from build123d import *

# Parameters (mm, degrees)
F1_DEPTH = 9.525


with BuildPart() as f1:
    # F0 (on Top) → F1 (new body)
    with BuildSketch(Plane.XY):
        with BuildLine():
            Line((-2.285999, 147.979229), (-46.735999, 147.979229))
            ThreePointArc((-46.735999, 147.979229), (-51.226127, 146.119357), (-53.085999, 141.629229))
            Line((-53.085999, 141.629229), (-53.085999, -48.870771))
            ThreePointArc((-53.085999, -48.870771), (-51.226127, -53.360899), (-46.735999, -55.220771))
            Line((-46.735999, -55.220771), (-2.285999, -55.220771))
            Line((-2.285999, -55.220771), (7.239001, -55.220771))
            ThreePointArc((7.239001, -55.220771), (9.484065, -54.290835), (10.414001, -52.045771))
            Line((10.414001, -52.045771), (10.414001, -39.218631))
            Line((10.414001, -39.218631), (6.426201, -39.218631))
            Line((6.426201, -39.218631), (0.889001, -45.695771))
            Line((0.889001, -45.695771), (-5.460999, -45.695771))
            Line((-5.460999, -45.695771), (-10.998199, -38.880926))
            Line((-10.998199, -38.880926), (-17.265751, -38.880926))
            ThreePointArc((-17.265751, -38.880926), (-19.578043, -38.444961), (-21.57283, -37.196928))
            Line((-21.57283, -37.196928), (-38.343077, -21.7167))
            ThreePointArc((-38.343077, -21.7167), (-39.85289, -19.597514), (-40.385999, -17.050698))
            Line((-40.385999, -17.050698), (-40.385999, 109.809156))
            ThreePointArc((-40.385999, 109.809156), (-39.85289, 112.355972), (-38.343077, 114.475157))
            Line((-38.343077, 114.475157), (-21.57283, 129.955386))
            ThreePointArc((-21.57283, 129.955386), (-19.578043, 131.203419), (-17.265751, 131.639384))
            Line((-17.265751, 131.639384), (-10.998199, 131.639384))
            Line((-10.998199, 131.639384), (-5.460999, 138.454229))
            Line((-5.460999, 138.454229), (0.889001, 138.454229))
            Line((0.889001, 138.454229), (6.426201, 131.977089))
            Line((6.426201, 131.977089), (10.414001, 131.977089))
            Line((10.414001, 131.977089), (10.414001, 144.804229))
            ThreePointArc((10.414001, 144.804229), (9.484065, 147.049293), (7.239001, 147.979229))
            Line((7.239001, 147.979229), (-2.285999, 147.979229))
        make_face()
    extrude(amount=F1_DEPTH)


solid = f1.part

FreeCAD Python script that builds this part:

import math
import FreeCAD as App
import Part
import Sketcher

V = App.Vector
Q = App.Units.Quantity

doc = App.newDocument("Part")
body = doc.addObject("PartDesign::Body", "Body")

# Sketch on XY plane
sketch1 = body.newObject("Sketcher::SketchObject", "Sketch")
sketch1.AttachmentSupport = (doc.getObject("XY_Plane"), [""])
sketch1.MapMode = "FlatFace"
sketch1.addGeometry([
    Part.ArcOfCircle(Part.Circle(V(-46.735999, 141.629229, 0), V(0, 0, 1), 6.35), math.radians(90.000002), math.radians(179.999998)),  # 0
    Part.LineSegment(V(-53.085999, 141.629229, 0), V(-53.085999, -48.870771, 0)),  # 1
    Part.ArcOfCircle(Part.Circle(V(-46.735999, -48.870771, 0), V(0, 0, 1), 6.35), math.radians(-179.999998), math.radians(-90.000002)),  # 2
    Part.LineSegment(V(-46.735999, -55.220771, 0), V(7.239001, -55.220771, 0)),  # 3
    Part.ArcOfCircle(Part.Circle(V(7.239001, -52.045771, 0), V(0, 0, 1), 3.175), math.radians(-89.999998), math.radians(-0.000002)),  # 4
    Part.LineSegment(V(10.414001, -52.045771, 0), V(10.414001, -39.218631, 0)),  # 5
    Part.LineSegment(V(10.414001, -39.218631, 0), V(6.426201, -39.218631, 0)),  # 6
    Part.LineSegment(V(6.426201, -39.218631, 0), V(0.889001, -45.695771, 0)),  # 7
    Part.LineSegment(V(0.889001, -45.695771, 0), V(-5.460999, -45.695771, 0)),  # 8
    Part.LineSegment(V(-5.460999, -45.695771, 0), V(-10.998199, -38.880926, 0)),  # 9
    Part.LineSegment(V(-10.998199, -38.880926, 0), V(-17.265751, -38.880926, 0)),  # 10
    Part.ArcOfCircle(Part.Circle(V(-17.265752, -32.530928, 0), V(0, 0, 1), 6.349998), math.radians(-132.709396), math.radians(-89.999988)),  # 11
    Part.LineSegment(V(-21.57283, -37.196928, 0), V(-38.343077, -21.7167, 0)),  # 12
    Part.ArcOfCircle(Part.Circle(V(-34.035995, -17.050696, 0), V(0, 0, 1), 6.350004), math.radians(-179.999979), math.radians(-132.709399)),  # 13
    Part.LineSegment(V(-40.385999, -17.050698, 0), V(-40.385999, 109.809156, 0)),  # 14
    Part.ArcOfCircle(Part.Circle(V(-34.035999, 109.809155, 0), V(0, 0, 1), 6.35), math.radians(132.709381), math.radians(179.999987)),  # 15
    Part.LineSegment(V(-38.343077, 114.475157, 0), V(-21.57283, 129.955386, 0)),  # 16
    Part.ArcOfCircle(Part.Circle(V(-17.265752, 125.289386, 0), V(0, 0, 1), 6.349998), math.radians(89.999988), math.radians(132.709396)),  # 17
    Part.LineSegment(V(-17.265751, 131.639384, 0), V(-10.998199, 131.639384, 0)),  # 18
    Part.LineSegment(V(-10.998199, 131.639384, 0), V(-5.460999, 138.454229, 0)),  # 19
    Part.LineSegment(V(-5.460999, 138.454229, 0), V(0.889001, 138.454229, 0)),  # 20
    Part.LineSegment(V(0.889001, 138.454229, 0), V(6.426201, 131.977089, 0)),  # 21
    Part.LineSegment(V(6.426201, 131.977089, 0), V(10.414001, 131.977089, 0)),  # 22
    Part.LineSegment(V(10.414001, 131.977089, 0), V(10.414001, 144.804229, 0)),  # 23
    Part.ArcOfCircle(Part.Circle(V(7.239001, 144.804229, 0), V(0, 0, 1), 3.175), math.radians(0.000002), math.radians(89.999998)),  # 24
    Part.LineSegment(V(7.239001, 147.979229, 0), V(-46.735999, 147.979229, 0)),  # 25
], False)
sketch1.addConstraint([
    Sketcher.Constraint("Tangent", 0, 2, 1, 1),
    Sketcher.Constraint("Tangent", 1, 2, 2, 1),
    Sketcher.Constraint("Tangent", 2, 2, 3, 1),
    Sketcher.Constraint("Tangent", 3, 2, 4, 1),
    Sketcher.Constraint("Tangent", 4, 2, 5, 1),
    Sketcher.Constraint("Coincident", 5, 2, 6, 1),
    Sketcher.Constraint("Coincident", 6, 2, 7, 1),
    Sketcher.Constraint("Coincident", 7, 2, 8, 1),
    Sketcher.Constraint("Coincident", 8, 2, 9, 1),
    Sketcher.Constraint("Coincident", 9, 2, 10, 1),
    Sketcher.Constraint("Tangent", 10, 2, 11, 2),
    Sketcher.Constraint("Tangent", 11, 1, 12, 1),
    Sketcher.Constraint("Tangent", 12, 2, 13, 2),
    Sketcher.Constraint("Tangent", 13, 1, 14, 1),
    Sketcher.Constraint("Tangent", 14, 2, 15, 2),
    Sketcher.Constraint("Tangent", 15, 1, 16, 1),
    Sketcher.Constraint("Tangent", 16, 2, 17, 2),
    Sketcher.Constraint("Tangent", 17, 1, 18, 1),
    Sketcher.Constraint("Coincident", 18, 2, 19, 1),
    Sketcher.Constraint("Coincident", 19, 2, 20, 1),
    Sketcher.Constraint("Coincident", 20, 2, 21, 1),
    Sketcher.Constraint("Coincident", 21, 2, 22, 1),
    Sketcher.Constraint("Coincident", 22, 2, 23, 1),
    Sketcher.Constraint("Tangent", 23, 2, 24, 1),
    Sketcher.Constraint("Tangent", 24, 2, 25, 1),
    Sketcher.Constraint("Tangent", 25, 2, 0, 1),
    Sketcher.Constraint("Vertical", 1),
    Sketcher.Constraint("Horizontal", 3),
    Sketcher.Constraint("Vertical", 5),
    Sketcher.Constraint("Horizontal", 6),
    Sketcher.Constraint("Horizontal", 8),
    Sketcher.Constraint("Horizontal", 10),
    Sketcher.Constraint("Vertical", 14),
    Sketcher.Constraint("Horizontal", 18),
    Sketcher.Constraint("Horizontal", 20),
    Sketcher.Constraint("Horizontal", 22),
    Sketcher.Constraint("Vertical", 23),
    Sketcher.Constraint("Horizontal", 25),
    Sketcher.Constraint("Equal", 0, 2),
    Sketcher.Constraint("Equal", 2, 15),
    Sketcher.Constraint("Equal", 11, 17),
    Sketcher.Constraint("Equal", 4, 24),
    Sketcher.Constraint("Vertical", 11, 3, 17, 3),
    Sketcher.Constraint("Vertical", 4, 3, 24, 3),
    Sketcher.Constraint("Vertical", 12, 2, 15, 1),
    Sketcher.Constraint("Vertical", 11, 1, 16, 2),
    Sketcher.Constraint("Vertical", 9, 2, 18, 2),
    Sketcher.Constraint("Vertical", 8, 2, 19, 2),
    Sketcher.Constraint("Vertical", 7, 2, 20, 2),
    Sketcher.Constraint("Vertical", 6, 2, 21, 2),
    Sketcher.Constraint("Equal", 5, 23),
    Sketcher.Constraint("Equal", 9, 19),
    Sketcher.Constraint("Equal", 7, 21),
    Sketcher.Constraint("Radius", 0, Q("0.25 in")),
    Sketcher.Constraint("Radius", 11, Q("0.2499999 in")),
    Sketcher.Constraint("DistanceY", 1, 2, 1, 1, Q("7.5 in")),
    Sketcher.Constraint("Radius", 4, Q("0.125 in")),
    Sketcher.Constraint("DistanceX", 8, 2, 8, 1, Q("0.25 in")),
    Sketcher.Constraint("DistanceX", 2, 3, 13, 3, Q("0.5000002 in")),
    Sketcher.Constraint("DistanceX", 8, 2, 4, 3, Q("0.5 in")),
    Sketcher.Constraint("DistanceX", 3, 1, 3, 2, Q("2.125 in")),
    Sketcher.Constraint("DistanceX", 6, 2, 6, 1, Q("0.157 in")),
    Sketcher.Constraint("DistanceX", 0, 3, -1, 1, Q("1.84 in")),
    Sketcher.Constraint("DistanceY", 4, 3, 7, 2, Q("0.25 in")),
    Sketcher.Constraint("DistanceX", 9, 2, -1, 1, Q("0.433 in")),
    Sketcher.Constraint("DistanceY", 8, 2, 11, 1, Q("0.3346001 in")),
    Sketcher.Constraint("DistanceY", 5, 1, 5, 2, 12.82714),
    Sketcher.Constraint("DistanceY", 12, 2, -1, 1, 21.7167),
    Sketcher.Constraint("DistanceY", 13, 1, -1, 1, 17.050698),
    Sketcher.Constraint("DistanceX", 10, 2, 10, 1, 6.267552),
])
pad1 = body.newObject("PartDesign::Pad", "Pad")
pad1.Profile = sketch1
pad1.Length = Q("0.375 in")

doc.recompute()
